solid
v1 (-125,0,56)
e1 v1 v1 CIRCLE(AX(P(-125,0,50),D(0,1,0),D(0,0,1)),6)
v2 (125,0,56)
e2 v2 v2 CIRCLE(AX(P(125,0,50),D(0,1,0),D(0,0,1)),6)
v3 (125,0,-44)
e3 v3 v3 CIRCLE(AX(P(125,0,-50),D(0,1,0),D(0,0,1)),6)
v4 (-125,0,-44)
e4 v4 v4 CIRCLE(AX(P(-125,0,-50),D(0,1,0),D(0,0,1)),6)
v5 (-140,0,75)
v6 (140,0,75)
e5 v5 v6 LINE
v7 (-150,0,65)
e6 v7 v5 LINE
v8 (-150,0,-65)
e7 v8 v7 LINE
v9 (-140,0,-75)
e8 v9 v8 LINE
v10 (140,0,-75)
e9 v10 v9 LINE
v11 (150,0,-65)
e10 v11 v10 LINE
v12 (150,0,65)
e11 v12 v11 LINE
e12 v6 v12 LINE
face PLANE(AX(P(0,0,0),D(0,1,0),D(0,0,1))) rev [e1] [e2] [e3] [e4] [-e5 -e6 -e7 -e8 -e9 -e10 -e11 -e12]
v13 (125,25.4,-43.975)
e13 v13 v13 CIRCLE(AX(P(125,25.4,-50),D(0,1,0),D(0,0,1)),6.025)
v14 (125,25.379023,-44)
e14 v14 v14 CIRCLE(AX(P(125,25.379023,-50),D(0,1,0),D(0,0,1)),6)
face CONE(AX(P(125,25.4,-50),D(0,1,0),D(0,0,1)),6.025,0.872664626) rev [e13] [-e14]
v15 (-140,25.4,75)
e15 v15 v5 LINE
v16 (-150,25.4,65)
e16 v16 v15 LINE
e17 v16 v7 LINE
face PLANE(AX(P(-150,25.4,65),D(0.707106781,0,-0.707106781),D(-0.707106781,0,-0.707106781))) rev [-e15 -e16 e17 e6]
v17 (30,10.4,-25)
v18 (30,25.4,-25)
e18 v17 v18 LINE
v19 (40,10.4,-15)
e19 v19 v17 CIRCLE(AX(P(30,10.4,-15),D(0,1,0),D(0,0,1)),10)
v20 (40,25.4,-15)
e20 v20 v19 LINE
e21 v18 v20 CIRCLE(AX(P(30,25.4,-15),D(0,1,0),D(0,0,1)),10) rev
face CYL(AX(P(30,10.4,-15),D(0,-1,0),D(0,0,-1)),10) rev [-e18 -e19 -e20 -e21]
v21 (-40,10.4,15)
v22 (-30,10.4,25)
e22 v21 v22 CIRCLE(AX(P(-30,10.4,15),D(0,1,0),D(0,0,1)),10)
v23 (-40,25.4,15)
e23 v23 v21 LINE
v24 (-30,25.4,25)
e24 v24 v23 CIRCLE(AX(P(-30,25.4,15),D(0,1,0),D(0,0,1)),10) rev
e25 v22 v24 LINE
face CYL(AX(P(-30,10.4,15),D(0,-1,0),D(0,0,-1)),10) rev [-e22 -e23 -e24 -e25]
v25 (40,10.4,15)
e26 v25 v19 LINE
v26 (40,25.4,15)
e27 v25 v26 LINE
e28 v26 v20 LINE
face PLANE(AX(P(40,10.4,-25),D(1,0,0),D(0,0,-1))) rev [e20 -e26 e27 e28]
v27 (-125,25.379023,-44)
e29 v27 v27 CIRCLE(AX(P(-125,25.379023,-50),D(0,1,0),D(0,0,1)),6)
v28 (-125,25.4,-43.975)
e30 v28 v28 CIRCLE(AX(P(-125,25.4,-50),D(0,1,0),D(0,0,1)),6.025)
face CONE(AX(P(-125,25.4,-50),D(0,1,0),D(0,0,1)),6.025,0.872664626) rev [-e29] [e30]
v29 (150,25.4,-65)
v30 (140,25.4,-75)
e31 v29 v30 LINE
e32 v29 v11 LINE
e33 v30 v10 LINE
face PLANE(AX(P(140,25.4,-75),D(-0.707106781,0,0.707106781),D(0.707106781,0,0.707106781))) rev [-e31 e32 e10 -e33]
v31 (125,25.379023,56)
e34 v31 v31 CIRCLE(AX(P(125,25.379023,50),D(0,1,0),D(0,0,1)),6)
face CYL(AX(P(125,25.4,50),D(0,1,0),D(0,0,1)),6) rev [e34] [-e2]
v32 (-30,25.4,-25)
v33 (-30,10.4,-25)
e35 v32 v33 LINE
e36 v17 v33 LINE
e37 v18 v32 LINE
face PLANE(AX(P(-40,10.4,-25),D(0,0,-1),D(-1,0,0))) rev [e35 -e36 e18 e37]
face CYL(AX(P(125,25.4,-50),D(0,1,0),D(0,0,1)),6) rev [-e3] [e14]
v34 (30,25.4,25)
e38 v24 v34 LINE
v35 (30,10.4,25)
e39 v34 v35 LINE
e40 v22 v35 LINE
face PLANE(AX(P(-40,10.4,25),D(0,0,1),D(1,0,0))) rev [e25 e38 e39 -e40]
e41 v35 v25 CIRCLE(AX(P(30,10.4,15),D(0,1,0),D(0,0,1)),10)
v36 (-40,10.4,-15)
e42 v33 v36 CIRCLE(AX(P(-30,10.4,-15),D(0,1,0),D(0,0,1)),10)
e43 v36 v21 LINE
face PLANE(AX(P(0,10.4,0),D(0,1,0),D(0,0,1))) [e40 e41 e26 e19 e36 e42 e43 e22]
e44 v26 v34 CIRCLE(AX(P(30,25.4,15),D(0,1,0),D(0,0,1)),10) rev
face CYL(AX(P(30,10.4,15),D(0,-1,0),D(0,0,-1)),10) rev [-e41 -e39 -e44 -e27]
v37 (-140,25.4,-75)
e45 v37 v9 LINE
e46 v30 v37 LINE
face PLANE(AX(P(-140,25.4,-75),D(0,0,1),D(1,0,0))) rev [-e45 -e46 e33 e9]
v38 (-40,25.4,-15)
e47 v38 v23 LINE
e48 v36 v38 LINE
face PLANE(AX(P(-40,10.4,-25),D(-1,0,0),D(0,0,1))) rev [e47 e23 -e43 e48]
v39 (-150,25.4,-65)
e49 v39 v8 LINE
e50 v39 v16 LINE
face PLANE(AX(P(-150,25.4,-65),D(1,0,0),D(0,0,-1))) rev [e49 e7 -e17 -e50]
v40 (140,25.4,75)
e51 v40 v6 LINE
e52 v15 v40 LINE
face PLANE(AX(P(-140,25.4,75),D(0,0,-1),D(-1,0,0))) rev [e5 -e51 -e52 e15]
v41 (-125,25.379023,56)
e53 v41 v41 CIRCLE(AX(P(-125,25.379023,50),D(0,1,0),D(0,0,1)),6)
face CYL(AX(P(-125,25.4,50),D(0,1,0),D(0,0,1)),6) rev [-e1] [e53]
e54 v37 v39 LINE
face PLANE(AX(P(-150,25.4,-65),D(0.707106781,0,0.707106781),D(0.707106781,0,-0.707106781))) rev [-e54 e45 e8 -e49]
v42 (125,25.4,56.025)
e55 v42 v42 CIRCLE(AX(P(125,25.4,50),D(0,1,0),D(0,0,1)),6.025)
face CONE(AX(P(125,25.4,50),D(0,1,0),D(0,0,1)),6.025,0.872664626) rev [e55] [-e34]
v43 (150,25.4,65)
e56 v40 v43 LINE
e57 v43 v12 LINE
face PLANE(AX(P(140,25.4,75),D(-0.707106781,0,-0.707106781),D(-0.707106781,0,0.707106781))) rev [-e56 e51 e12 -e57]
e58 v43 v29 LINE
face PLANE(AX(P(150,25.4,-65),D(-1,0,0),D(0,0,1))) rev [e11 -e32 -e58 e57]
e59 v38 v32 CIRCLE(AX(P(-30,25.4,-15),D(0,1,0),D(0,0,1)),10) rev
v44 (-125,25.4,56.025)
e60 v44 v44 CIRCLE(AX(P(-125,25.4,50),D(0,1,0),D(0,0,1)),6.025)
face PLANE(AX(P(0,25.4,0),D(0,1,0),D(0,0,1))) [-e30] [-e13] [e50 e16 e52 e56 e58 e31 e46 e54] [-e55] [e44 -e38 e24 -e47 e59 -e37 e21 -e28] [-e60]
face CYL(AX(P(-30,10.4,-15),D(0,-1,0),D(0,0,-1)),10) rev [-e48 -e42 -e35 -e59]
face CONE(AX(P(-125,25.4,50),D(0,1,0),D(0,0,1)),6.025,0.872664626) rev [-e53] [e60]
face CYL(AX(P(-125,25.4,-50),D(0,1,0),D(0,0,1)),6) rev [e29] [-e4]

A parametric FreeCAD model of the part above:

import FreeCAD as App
import Part
import Sketcher
Q = App.Units.Quantity


def edges_at(feature, points):
    """Names of the edges that pass closest to the given points."""
    edges = feature.Shape.Edges
    near = lambda p: min(range(len(edges)), key=lambda i: edges[i].distToShape(Part.Vertex(*p))[0])
    return sorted({f"Edge{near(p) + 1}" for p in points})


def add_polygon(sketch, points):
    """Adds a closed chain of lines whose ends are joined by coincident constraints."""
    first, n = sketch.GeometryCount, len(points)
    for a, b in zip(points, points[1:] + points[:1]):
        sketch.addGeometry(Part.LineSegment(App.Vector(*a, 0), App.Vector(*b, 0)), False)
    for i in range(n):
        sketch.addConstraint(Sketcher.Constraint("Coincident", first + i, 2, first + (i + 1) % n, 1))

doc = App.newDocument("Part")
params = doc.addObject("Spreadsheet::Sheet", "Params")
for row, (alias, value) in enumerate([
    ("sketch1_width", "280 mm"),
    ("sketch1_height", "130 mm"),
    ("pad1_length", "25.4 mm"),
    ("sketch2_width", "80 mm"),
    ("sketch2_height", "50 mm"),
    ("pocket1_length", "15 mm"),
    ("fillet_radius", "10 mm"),
    ("sketch3_diameter", "12 mm"),
    ("hole_diameter", "12 mm"),
    ("hole_csink_diameter", "12.05 mm"),
], start=1):
    params.set(f"A{row}", alias)
    params.set(f"B{row}", "=" + value)
    params.setAlias(f"B{row}", alias)

body = doc.addObject("PartDesign::Body", "Body")

# Sketch on XZ plane
sketch1 = body.newObject("Sketcher::SketchObject", "Sketch")
sketch1.AttachmentSupport = (doc.getObject("XZ_Plane"), [""])
sketch1.MapMode = "FlatFace"
add_polygon(sketch1, [(-140, -75), (-150, -65), (-150, 65), (-140, 75), (140, 75), (150, 65), (150, -65), (140, -75)])  # lines 0-7
sketch1.addConstraint(Sketcher.Constraint("Vertical", 1))
sketch1.addConstraint(Sketcher.Constraint("Horizontal", 3))
sketch1.addConstraint(Sketcher.Constraint("Vertical", 5))
sketch1.addConstraint(Sketcher.Constraint("Horizontal", 7))
sketch1.addConstraint(Sketcher.Constraint("Symmetric", 0, 2, 4, 2, -1, 1))
sketch1.addConstraint(Sketcher.Constraint("Symmetric", 2, 2, 6, 2, -1, 1))
sketch1.addConstraint(Sketcher.Constraint("Perpendicular", 0, 2))
sketch1.addConstraint(Sketcher.Constraint("Perpendicular", 2, 4))
sketch1.addConstraint(Sketcher.Constraint("Perpendicular", 4, 6))
sketch1.addConstraint(Sketcher.Constraint("Horizontal", 1, 2, 4, 2))
sketch1.addConstraint(Sketcher.Constraint("Vertical", 3, 2, 6, 2))
sketch1.addConstraint(Sketcher.Constraint("DistanceX", 3, 1, 3, 2, Q("280 mm")))
sketch1.addConstraint(Sketcher.Constraint("DistanceY", 1, 1, 1, 2, Q("130 mm")))
sketch1.addConstraint(Sketcher.Constraint("DistanceX", 0, 2, -1, 1, Q("150 mm")))
sketch1.setExpression("Constraints[19]", "Params.sketch1_width")
sketch1.setExpression("Constraints[20]", "Params.sketch1_height")
pad1 = body.newObject("PartDesign::Pad", "Pad")
pad1.Profile = sketch1
pad1.setExpression("Length", "Params.pad1_length")
pad1.Reversed = True

# Sketch on XZ plane
sketch2 = body.newObject("Sketcher::SketchObject", "Sketch001")
sketch2.AttachmentSupport = (doc.getObject("XZ_Plane"), [""])
sketch2.MapMode = "FlatFace"
sketch2.AttachmentOffset = App.Placement(App.Vector(0, 0, -25.4), App.Rotation())
add_polygon(sketch2, [(-40, -25), (-40, 25), (40, 25), (40, -25)])  # lines 0-3
sketch2.addConstraint(Sketcher.Constraint("Vertical", 0))
sketch2.addConstraint(Sketcher.Constraint("Horizontal", 1))
sketch2.addConstraint(Sketcher.Constraint("Vertical", 2))
sketch2.addConstraint(Sketcher.Constraint("Horizontal", 3))
sketch2.addConstraint(Sketcher.Constraint("Symmetric", 0, 2, 2, 2, -1, 1))
sketch2.addConstraint(Sketcher.Constraint("DistanceX", 1, 1, 1, 2, Q("80 mm")))
sketch2.addConstraint(Sketcher.Constraint("DistanceY", 0, 1, 0, 2, Q("50 mm")))
sketch2.setExpression("Constraints[9]", "Params.sketch2_width")
sketch2.setExpression("Constraints[10]", "Params.sketch2_height")
pocket1 = body.newObject("PartDesign::Pocket", "Pocket")
pocket1.Profile = sketch2
pocket1.setExpression("Length", "Params.pocket1_length")
pocket1.Reversed = True
doc.recompute()

fillet = body.newObject("PartDesign::Fillet", "Fillet")
fillet.Base = (pocket1, edges_at(pocket1, [
    (40, 17.9, -25),
    (40, 17.9, 25),
    (-40, 17.9, 25),
    (-40, 17.9, -25),
]))
fillet.setExpression("Radius", "Params.fillet_radius")

# Sketch on XZ plane
sketch3 = body.newObject("Sketcher::SketchObject", "Sketch002")
sketch3.AttachmentSupport = (doc.getObject("XZ_Plane"), [""])
sketch3.MapMode = "FlatFace"
sketch3.AttachmentOffset = App.Placement(App.Vector(0, 0, -25.4), App.Rotation())
sketch3.addGeometry(Part.Circle(App.Vector(-125, -50, 0), App.Vector(0, 0, 1), 6), False)
sketch3.addGeometry(Part.Circle(App.Vector(125, -50, 0), App.Vector(0, 0, 1), 6), False)
sketch3.addGeometry(Part.Circle(App.Vector(125, 50, 0), App.Vector(0, 0, 1), 6), False)
sketch3.addGeometry(Part.Circle(App.Vector(-125, 50, 0), App.Vector(0, 0, 1), 6), False)
sketch3.addConstraint(Sketcher.Constraint("Equal", 0, 1))
sketch3.addConstraint(Sketcher.Constraint("Equal", 1, 2))
sketch3.addConstraint(Sketcher.Constraint("Equal", 2, 3))
sketch3.addConstraint(Sketcher.Constraint("Symmetric", 0, 3, 2, 3, -1, 1))
sketch3.addConstraint(Sketcher.Constraint("Symmetric", 1, 3, 3, 3, -1, 1))
sketch3.addConstraint(Sketcher.Constraint("Symmetric", 0, 3, 1, 3, -2))
sketch3.addConstraint(Sketcher.Constraint("Diameter", 0, Q("12 mm")))
sketch3.addConstraint(Sketcher.Constraint("DistanceX", 0, 3, -1, 1, Q("125 mm")))
sketch3.addConstraint(Sketcher.Constraint("DistanceY", 0, 3, -1, 1, Q("50 mm")))
sketch3.setExpression("Constraints[6]", "Params.sketch3_diameter")
doc.recompute()
hole = body.newObject("PartDesign::Hole", "Hole")
hole.Profile = sketch3
hole.ThreadType = "None"
hole.setExpression("Diameter", "Params.hole_diameter")
hole.DepthType = "ThroughAll"
hole.HoleCutType = "Countersink"
hole.setExpression("HoleCutDiameter", "Params.hole_csink_diameter")
hole.HoleCutCountersinkAngle = 100
hole.Reversed = True

doc.recompute()
